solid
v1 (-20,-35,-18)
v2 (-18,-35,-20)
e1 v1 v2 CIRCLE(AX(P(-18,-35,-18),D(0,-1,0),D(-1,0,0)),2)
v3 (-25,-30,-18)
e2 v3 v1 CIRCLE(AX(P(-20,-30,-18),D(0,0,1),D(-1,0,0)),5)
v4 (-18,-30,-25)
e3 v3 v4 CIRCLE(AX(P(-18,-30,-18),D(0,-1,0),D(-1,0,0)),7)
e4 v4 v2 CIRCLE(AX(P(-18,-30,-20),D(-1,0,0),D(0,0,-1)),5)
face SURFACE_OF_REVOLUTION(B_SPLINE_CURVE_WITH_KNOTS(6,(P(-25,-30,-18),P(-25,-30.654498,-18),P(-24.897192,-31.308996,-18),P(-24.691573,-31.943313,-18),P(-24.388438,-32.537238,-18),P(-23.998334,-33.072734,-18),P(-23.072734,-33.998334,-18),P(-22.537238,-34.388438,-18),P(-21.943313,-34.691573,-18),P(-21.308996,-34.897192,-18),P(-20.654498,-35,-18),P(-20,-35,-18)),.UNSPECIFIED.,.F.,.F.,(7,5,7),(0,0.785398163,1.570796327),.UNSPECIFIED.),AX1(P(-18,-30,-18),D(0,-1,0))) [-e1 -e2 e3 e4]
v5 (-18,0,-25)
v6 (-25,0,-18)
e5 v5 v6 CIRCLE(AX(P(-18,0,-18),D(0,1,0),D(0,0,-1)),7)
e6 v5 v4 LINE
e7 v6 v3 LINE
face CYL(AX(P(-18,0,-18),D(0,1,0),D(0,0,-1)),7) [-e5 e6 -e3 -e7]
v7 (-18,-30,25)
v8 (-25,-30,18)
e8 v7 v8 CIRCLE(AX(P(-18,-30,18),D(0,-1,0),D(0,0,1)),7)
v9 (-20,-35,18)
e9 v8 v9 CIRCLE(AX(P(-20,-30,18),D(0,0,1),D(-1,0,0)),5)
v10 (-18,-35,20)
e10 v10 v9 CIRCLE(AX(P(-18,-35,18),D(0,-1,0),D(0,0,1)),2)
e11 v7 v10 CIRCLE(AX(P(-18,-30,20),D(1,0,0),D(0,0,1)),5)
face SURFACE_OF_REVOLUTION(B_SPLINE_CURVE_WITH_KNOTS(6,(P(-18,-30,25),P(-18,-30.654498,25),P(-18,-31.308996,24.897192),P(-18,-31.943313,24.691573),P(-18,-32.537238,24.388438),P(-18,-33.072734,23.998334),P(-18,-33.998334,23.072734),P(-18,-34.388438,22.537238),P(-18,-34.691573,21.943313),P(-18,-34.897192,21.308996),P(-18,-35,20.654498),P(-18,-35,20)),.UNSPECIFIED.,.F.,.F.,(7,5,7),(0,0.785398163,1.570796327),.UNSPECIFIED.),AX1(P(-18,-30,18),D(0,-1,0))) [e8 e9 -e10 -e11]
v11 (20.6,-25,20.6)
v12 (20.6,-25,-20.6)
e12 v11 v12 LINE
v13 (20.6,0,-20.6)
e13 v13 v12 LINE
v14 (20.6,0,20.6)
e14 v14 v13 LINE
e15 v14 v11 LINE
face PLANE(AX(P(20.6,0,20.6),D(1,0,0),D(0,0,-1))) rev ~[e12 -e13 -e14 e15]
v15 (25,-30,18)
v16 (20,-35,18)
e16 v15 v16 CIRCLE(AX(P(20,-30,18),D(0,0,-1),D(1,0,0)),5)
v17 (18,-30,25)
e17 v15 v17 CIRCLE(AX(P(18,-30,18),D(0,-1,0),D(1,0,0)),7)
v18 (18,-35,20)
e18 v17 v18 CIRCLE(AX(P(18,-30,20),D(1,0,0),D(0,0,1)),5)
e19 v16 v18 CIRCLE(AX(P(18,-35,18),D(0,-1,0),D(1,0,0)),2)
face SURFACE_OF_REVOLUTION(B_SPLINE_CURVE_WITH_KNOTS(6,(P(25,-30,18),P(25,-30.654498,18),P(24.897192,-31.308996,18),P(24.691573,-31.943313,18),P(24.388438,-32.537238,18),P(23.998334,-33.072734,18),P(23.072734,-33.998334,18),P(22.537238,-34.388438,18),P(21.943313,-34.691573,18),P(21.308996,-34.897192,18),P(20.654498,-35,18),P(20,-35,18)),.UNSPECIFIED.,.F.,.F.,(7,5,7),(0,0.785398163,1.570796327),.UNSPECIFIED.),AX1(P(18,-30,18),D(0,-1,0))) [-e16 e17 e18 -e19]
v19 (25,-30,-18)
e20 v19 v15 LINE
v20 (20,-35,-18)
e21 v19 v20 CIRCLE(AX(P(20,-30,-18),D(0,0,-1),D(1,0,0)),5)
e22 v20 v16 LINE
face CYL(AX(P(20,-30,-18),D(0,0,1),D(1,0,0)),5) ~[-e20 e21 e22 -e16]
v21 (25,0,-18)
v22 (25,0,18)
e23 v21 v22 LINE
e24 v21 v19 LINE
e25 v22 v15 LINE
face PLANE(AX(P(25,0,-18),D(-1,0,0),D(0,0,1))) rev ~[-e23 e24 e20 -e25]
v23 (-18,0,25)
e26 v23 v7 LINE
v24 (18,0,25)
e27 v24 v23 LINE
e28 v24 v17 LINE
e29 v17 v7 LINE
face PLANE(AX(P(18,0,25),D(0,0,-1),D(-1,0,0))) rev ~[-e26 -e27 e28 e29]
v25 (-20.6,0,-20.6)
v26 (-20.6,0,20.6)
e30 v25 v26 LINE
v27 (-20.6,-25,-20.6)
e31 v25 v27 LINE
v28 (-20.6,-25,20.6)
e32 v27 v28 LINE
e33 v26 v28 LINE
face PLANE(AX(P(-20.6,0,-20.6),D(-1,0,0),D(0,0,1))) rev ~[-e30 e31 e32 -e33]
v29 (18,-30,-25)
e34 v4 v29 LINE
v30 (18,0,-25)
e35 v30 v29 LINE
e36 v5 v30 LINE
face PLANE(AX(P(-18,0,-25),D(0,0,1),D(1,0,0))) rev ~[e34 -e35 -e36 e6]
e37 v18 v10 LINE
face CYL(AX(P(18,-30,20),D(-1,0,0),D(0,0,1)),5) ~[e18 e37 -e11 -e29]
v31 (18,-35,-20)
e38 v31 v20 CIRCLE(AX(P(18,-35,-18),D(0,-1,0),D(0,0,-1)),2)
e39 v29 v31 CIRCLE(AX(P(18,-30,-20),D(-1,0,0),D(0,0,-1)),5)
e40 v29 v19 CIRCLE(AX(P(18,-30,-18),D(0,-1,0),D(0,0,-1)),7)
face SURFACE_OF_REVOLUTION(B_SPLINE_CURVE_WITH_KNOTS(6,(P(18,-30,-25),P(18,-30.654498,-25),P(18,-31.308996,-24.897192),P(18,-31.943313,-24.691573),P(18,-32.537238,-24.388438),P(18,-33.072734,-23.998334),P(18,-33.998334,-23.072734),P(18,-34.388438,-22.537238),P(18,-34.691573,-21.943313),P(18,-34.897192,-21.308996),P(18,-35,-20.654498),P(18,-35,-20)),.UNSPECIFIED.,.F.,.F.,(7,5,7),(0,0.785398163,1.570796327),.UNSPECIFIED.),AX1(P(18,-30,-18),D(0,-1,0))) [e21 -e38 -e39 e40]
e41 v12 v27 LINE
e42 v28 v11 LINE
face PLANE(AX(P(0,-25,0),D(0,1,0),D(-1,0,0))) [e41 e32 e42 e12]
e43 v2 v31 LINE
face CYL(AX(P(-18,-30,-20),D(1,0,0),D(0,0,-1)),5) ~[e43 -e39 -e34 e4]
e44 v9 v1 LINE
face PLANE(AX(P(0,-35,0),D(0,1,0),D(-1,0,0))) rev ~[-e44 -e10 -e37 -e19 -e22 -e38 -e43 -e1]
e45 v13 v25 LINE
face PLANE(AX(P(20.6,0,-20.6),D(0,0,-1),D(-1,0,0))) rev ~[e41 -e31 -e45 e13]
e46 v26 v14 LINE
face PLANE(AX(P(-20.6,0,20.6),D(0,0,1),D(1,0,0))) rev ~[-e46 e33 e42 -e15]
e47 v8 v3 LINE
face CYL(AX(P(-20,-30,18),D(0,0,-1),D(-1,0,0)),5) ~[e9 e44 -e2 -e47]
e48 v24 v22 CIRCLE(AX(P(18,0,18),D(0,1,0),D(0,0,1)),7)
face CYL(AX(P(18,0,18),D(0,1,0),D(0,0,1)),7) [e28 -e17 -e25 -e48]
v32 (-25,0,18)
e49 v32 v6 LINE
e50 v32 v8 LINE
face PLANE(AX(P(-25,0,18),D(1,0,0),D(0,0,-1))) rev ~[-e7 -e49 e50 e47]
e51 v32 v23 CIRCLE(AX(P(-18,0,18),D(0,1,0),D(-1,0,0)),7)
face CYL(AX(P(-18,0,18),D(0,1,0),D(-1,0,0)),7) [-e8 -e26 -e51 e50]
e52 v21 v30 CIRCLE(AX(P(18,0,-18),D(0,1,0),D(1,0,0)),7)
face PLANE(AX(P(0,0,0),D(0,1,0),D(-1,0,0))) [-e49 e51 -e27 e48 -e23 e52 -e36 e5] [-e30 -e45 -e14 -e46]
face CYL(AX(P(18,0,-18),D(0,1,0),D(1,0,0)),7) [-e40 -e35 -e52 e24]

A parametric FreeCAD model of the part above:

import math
import FreeCAD as App
import Part
import Sketcher
from FreeCAD import Vector
Q = App.Units.Quantity


def edges_at(feature, points):
    """Names of the edges that pass closest to the given points."""
    edges = feature.Shape.Edges
    near = lambda p: min(range(len(edges)), key=lambda i: edges[i].distToShape(Part.Vertex(*p))[0])
    return sorted({f"Edge{near(p) + 1}" for p in points})


def add_polygon(sketch, points):
    """Adds a closed chain of lines whose ends are joined by coincident constraints."""
    first, n = sketch.GeometryCount, len(points)
    for a, b in zip(points, points[1:] + points[:1]):
        sketch.addGeometry(Part.LineSegment(App.Vector(*a, 0), App.Vector(*b, 0)), False)
    for i in range(n):
        sketch.addConstraint(Sketcher.Constraint("Coincident", first + i, 2, first + (i + 1) % n, 1))

doc = App.newDocument("Part")
params = doc.addObject("Spreadsheet::Sheet", "Params")
for row, (alias, value) in enumerate([
    ("sketch1_radius", "7 mm"),
    ("sketch1_width", "36 mm"),
    ("pad1_length", "35 mm"),
    ("fillet_radius", "5 mm"),
    ("sketch2_width", "41.2 mm"),
    ("pocket1_length", "25 mm"),
], start=1):
    params.set(f"A{row}", alias)
    params.set(f"B{row}", "=" + value)
    params.setAlias(f"B{row}", alias)

body = doc.addObject("PartDesign::Body", "Body")

# Sketch on XZ plane
sketch1 = doc.addObject("Sketcher::SketchObject", "Sketch")
body.addObject(sketch1)
sketch1.AttachmentSupport = (doc.XZ_Plane, [""])
sketch1.MapMode = "FlatFace"
sketch1.addGeometry(Part.LineSegment(Vector(-18, 25, 0), Vector(18, 25, 0)), False)
sketch1.addGeometry(Part.ArcOfCircle(Part.Circle(Vector(18, 18, 0), Vector(0, 0, 1), 7), math.radians(0), math.radians(90)), False)
sketch1.addGeometry(Part.LineSegment(Vector(25, 18, 0), Vector(25, -18, 0)), False)
sketch1.addGeometry(Part.ArcOfCircle(Part.Circle(Vector(18, -18, 0), Vector(0, 0, 1), 7), math.radians(-90), math.radians(0)), False)
sketch1.addGeometry(Part.LineSegment(Vector(18, -25, 0), Vector(-18, -25, 0)), False)
sketch1.addGeometry(Part.ArcOfCircle(Part.Circle(Vector(-18, -18, 0), Vector(0, 0, 1), 7), math.radians(180), math.radians(270)), False)
sketch1.addGeometry(Part.LineSegment(Vector(-25, -18, 0), Vector(-25, 18, 0)), False)
sketch1.addGeometry(Part.ArcOfCircle(Part.Circle(Vector(-18, 18, 0), Vector(0, 0, 1), 7), math.radians(90), math.radians(180)), False)
sketch1.addConstraint(Sketcher.Constraint("Tangent", 0, 2, 1, 2))
sketch1.addConstraint(Sketcher.Constraint("Tangent", 1, 1, 2, 1))
sketch1.addConstraint(Sketcher.Constraint("Tangent", 2, 2, 3, 2))
sketch1.addConstraint(Sketcher.Constraint("Tangent", 3, 1, 4, 1))
sketch1.addConstraint(Sketcher.Constraint("Tangent", 4, 2, 5, 2))
sketch1.addConstraint(Sketcher.Constraint("Tangent", 5, 1, 6, 1))
sketch1.addConstraint(Sketcher.Constraint("Tangent", 6, 2, 7, 2))
sketch1.addConstraint(Sketcher.Constraint("Tangent", 7, 1, 0, 1))
sketch1.addConstraint(Sketcher.Constraint("Horizontal", 0))
sketch1.addConstraint(Sketcher.Constraint("Vertical", 2))
sketch1.addConstraint(Sketcher.Constraint("Horizontal", 4))
sketch1.addConstraint(Sketcher.Constraint("Vertical", 6))
sketch1.addConstraint(Sketcher.Constraint("Equal", 1, 3))
sketch1.addConstraint(Sketcher.Constraint("Equal", 3, 5))
sketch1.addConstraint(Sketcher.Constraint("Equal", 5, 7))
sketch1.addConstraint(Sketcher.Constraint("Symmetric", 1, 3, 5, 3, -1, 1))
sketch1.addConstraint(Sketcher.Constraint("Equal", 4, 2))
sketch1.addConstraint(Sketcher.Constraint("Radius", 1, Q("7 mm")))
sketch1.addConstraint(Sketcher.Constraint("DistanceX", 0, 1, 0, 2, Q("36 mm")))
sketch1.setExpression("Constraints[17]", "Params.sketch1_radius")
sketch1.setExpression("Constraints[18]", "Params.sketch1_width")
pad1 = doc.addObject("PartDesign::Pad", "Pad")
body.addObject(pad1)
pad1.Profile = sketch1
pad1.setExpression("Length", "Params.pad1_length")
doc.recompute()

fillet = doc.addObject("PartDesign::Fillet", "Fillet")
body.addObject(fillet)
fillet.Base = (pad1, edges_at(pad1, [
    (0, -35, 25),
    (-22.95, -35, 22.95),
    (-25, -35, 0),
    (-22.95, -35, -22.95),
    (0, -35, -25),
    (22.95, -35, -22.95),
    (25, -35, 0),
    (22.95, -35, 22.95),
]))
fillet.setExpression("Radius", "Params.fillet_radius")

# Sketch on XZ plane
sketch2 = doc.addObject("Sketcher::SketchObject", "Sketch001")
body.addObject(sketch2)
sketch2.AttachmentSupport = (doc.XZ_Plane, [""])
sketch2.MapMode = "FlatFace"
add_polygon(sketch2, [(21, -21), (-21, -21), (-21, 21), (21, 21)])  # lines 0-3
sketch2.addConstraint(Sketcher.Constraint("Horizontal", 0))
sketch2.addConstraint(Sketcher.Constraint("Vertical", 1))
sketch2.addConstraint(Sketcher.Constraint("Horizontal", 2))
sketch2.addConstraint(Sketcher.Constraint("Vertical", 3))
sketch2.addConstraint(Sketcher.Constraint("Symmetric", 0, 2, 2, 2, -1, 1))
sketch2.addConstraint(Sketcher.Constraint("Equal", 2, 1))
sketch2.addConstraint(Sketcher.Constraint("DistanceX", 0, 2, 0, 1, Q("41.2 mm")))
sketch2.setExpression("Constraints[10]", "Params.sketch2_width")
pocket1 = doc.addObject("PartDesign::Pocket", "Pocket")
body.addObject(pocket1)
pocket1.Profile = sketch2
pocket1.setExpression("Length", "Params.pocket1_length")
pocket1.Reversed = True

doc.recompute()
